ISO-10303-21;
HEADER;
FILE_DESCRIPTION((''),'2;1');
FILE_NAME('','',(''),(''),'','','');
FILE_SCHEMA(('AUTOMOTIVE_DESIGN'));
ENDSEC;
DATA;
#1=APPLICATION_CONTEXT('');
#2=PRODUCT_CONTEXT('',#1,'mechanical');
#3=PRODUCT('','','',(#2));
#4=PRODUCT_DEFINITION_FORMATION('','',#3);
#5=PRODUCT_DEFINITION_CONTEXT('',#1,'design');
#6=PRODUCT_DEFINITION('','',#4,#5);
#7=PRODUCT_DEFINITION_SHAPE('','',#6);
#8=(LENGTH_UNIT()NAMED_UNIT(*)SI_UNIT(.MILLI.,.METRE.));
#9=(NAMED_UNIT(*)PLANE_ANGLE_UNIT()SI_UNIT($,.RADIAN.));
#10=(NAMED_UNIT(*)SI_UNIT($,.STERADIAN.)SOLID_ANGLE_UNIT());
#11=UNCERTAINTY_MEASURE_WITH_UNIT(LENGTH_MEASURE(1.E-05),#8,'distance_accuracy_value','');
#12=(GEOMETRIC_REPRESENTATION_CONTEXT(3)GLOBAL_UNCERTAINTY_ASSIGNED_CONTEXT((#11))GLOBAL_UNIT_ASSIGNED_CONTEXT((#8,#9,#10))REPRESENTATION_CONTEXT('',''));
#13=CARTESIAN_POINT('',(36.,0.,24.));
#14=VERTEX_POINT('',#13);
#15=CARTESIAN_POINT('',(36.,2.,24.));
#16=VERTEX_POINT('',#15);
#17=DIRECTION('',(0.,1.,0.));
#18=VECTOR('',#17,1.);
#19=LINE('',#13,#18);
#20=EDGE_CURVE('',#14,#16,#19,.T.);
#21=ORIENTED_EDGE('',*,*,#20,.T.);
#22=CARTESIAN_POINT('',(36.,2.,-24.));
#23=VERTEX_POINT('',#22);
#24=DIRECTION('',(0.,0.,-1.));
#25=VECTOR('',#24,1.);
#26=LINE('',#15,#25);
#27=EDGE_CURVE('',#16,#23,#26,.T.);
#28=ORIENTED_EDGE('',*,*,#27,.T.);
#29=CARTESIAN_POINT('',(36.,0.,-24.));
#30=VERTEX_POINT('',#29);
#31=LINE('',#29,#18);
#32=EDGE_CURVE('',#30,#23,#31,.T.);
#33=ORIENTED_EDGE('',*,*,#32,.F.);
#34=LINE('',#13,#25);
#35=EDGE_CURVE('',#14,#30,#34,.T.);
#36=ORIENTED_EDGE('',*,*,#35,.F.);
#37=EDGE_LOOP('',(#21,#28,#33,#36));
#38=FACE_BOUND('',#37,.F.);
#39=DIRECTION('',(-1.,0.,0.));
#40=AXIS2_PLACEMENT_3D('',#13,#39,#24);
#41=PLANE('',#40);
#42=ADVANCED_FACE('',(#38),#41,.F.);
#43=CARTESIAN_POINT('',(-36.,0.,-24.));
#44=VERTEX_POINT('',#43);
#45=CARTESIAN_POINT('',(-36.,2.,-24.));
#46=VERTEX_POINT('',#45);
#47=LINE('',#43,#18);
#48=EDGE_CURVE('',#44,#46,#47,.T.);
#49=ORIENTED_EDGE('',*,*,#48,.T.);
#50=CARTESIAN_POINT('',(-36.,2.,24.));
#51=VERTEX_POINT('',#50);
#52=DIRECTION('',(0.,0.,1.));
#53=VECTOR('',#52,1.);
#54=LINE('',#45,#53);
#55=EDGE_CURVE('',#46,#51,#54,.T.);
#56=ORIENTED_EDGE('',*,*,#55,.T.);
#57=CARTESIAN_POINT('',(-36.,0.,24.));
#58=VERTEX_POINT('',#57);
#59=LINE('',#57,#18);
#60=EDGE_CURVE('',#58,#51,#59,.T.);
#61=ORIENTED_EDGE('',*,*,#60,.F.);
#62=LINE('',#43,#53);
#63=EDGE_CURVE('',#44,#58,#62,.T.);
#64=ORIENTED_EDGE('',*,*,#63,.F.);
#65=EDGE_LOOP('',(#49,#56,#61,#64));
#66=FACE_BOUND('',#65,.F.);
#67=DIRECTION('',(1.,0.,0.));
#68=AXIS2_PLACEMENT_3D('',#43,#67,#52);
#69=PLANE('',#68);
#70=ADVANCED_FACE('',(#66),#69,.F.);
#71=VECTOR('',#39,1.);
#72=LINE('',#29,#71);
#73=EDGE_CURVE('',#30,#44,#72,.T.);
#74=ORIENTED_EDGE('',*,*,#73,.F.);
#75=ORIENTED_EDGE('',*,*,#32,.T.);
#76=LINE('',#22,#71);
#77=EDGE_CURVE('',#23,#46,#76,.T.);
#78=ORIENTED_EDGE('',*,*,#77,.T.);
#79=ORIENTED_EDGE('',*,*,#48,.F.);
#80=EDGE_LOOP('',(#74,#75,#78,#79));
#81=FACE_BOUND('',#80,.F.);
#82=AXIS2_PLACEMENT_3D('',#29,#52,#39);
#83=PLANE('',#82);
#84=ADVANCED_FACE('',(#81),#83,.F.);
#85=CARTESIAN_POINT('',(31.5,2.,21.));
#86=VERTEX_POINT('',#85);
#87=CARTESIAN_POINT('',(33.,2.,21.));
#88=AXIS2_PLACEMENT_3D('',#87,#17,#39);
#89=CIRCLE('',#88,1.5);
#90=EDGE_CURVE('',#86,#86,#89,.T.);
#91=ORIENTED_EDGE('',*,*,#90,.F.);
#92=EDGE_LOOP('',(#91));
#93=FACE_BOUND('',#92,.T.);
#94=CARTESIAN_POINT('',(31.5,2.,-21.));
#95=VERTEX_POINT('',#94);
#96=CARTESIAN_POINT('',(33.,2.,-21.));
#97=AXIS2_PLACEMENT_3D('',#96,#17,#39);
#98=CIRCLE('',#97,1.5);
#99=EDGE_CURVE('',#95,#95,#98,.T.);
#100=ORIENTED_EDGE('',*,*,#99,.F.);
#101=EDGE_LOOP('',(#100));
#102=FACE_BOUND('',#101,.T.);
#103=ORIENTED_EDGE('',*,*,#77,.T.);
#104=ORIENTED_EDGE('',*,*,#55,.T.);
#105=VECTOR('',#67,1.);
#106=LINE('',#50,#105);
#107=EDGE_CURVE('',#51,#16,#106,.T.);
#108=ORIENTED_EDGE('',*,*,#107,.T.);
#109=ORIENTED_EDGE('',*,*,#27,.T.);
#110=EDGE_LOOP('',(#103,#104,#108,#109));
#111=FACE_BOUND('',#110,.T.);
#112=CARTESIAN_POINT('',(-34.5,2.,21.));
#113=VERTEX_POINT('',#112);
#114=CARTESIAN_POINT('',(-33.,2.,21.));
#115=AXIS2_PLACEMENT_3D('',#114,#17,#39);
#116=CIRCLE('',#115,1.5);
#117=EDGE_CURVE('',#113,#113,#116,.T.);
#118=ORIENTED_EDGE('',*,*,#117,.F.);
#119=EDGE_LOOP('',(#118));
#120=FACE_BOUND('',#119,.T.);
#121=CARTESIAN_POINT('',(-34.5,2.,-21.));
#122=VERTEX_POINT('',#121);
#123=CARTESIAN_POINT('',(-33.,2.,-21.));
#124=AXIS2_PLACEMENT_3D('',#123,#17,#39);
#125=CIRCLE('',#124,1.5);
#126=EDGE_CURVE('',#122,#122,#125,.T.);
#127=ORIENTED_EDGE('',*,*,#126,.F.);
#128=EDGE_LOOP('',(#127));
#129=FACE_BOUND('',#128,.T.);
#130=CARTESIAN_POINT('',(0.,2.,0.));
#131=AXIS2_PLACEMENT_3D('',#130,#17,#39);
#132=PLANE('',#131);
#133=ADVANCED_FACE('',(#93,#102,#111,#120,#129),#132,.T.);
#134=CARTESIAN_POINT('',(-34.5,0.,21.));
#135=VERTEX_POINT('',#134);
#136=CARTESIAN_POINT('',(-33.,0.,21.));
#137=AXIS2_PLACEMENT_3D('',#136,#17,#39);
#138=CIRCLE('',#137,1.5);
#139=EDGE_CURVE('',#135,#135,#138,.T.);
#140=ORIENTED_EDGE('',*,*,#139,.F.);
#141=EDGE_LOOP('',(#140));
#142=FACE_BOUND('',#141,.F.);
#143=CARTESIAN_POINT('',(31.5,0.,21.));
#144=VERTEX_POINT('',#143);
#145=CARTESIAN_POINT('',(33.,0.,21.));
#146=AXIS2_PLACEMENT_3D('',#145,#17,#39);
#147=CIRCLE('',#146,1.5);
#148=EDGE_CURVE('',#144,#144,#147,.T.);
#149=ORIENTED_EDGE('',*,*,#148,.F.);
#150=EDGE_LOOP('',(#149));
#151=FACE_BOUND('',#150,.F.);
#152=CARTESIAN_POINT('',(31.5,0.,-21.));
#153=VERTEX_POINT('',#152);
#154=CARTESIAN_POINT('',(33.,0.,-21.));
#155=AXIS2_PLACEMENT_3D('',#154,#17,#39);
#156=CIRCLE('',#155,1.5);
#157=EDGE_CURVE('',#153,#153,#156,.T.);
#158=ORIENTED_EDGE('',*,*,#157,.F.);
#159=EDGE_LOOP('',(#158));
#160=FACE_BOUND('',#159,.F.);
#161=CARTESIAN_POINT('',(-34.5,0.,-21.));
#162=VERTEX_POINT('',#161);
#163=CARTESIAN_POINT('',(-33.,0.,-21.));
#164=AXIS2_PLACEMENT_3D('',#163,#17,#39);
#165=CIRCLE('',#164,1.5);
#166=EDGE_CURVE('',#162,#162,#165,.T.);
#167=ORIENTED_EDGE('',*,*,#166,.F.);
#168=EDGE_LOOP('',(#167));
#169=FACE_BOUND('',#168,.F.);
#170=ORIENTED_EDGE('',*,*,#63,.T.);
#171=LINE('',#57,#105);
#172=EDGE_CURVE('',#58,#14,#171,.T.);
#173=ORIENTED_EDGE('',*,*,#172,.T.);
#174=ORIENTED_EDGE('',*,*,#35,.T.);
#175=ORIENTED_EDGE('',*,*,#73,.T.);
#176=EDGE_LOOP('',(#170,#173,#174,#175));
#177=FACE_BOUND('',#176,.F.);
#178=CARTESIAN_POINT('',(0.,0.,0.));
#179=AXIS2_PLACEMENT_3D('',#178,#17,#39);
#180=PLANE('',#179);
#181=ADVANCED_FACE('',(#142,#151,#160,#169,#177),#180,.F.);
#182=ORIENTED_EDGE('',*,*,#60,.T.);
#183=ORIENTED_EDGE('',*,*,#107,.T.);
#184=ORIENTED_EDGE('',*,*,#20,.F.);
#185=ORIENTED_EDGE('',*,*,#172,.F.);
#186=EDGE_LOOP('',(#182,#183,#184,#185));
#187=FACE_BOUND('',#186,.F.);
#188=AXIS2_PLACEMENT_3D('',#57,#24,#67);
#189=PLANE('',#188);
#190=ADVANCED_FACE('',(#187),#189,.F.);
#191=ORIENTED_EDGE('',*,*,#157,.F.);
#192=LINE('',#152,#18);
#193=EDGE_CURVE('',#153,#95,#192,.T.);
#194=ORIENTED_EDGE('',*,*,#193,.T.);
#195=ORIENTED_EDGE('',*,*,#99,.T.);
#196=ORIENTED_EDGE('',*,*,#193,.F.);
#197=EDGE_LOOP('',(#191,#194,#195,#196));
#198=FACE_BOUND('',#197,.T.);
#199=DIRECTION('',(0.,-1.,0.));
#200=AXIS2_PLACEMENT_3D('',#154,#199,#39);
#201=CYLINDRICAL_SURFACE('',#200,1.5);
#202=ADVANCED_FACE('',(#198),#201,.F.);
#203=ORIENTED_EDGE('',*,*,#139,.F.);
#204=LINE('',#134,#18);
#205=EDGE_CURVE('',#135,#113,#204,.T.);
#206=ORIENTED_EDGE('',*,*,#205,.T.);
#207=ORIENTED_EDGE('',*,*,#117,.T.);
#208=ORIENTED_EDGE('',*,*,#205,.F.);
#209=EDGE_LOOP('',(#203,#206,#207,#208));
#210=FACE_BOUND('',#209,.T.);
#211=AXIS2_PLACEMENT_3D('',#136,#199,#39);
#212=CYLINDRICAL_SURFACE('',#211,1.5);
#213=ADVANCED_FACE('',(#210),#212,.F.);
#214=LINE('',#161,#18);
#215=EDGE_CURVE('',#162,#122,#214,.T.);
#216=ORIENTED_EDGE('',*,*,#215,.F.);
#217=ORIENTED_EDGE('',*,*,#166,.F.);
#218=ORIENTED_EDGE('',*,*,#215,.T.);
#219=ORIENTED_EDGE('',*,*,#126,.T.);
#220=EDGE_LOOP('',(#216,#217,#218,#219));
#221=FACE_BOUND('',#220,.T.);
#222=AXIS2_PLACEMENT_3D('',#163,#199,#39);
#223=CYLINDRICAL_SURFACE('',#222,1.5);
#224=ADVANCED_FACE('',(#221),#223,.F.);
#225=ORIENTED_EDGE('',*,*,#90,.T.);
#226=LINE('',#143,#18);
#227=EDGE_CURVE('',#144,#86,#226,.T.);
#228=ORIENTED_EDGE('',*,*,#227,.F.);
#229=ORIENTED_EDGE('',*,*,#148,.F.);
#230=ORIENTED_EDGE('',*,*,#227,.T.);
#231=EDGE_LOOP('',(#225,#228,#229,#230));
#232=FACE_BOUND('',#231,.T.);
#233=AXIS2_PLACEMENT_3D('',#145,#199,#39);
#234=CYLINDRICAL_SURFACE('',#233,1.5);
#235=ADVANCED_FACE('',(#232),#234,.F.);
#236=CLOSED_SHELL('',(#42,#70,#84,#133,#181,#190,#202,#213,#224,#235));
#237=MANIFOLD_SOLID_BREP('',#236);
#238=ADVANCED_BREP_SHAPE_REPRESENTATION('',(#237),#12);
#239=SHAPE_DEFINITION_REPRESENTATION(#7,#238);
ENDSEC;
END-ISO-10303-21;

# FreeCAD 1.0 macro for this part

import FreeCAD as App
import Part
import Sketcher

V = App.Vector


def add_polygon(sketch, points):
    """Adds a closed chain of lines whose ends are joined by coincident constraints."""
    first, n = sketch.GeometryCount, len(points)
    for a, b in zip(points, points[1:] + points[:1]):
        sketch.addGeometry(Part.LineSegment(App.Vector(*a, 0), App.Vector(*b, 0)), False)
    for i in range(n):
        sketch.addConstraint(Sketcher.Constraint("Coincident", first + i, 2, first + (i + 1) % n, 1))

doc = App.newDocument("Part")
body = doc.addObject("PartDesign::Body", "Body")

# Sketch on XZ plane
sketch1 = doc.addObject("Sketcher::SketchObject", "Sketch")
body.addObject(sketch1)
sketch1.AttachmentSupport = (doc.XZ_Plane, [""])
sketch1.MapMode = "FlatFace"
add_polygon(sketch1, [(-36, -24), (-36, 24), (36, 24), (36, -24)])  # lines 0-3
sketch1.addGeometry(Part.Circle(V(33, -21, 0), V(0, 0, 1), 1.5), False)  # 4
sketch1.addGeometry(Part.Circle(V(-33, -21, 0), V(0, 0, 1), 1.5), False)  # 5
sketch1.addGeometry(Part.Circle(V(33, 21, 0), V(0, 0, 1), 1.5), False)  # 6
sketch1.addGeometry(Part.Circle(V(-33, 21, 0), V(0, 0, 1), 1.5), False)  # 7
sketch1.addConstraint(Sketcher.Constraint("Vertical", 0))
sketch1.addConstraint(Sketcher.Constraint("Horizontal", 1))
sketch1.addConstraint(Sketcher.Constraint("Vertical", 2))
sketch1.addConstraint(Sketcher.Constraint("Horizontal", 3))
sketch1.addConstraint(Sketcher.Constraint("Equal", 4, 5))
sketch1.addConstraint(Sketcher.Constraint("Equal", 5, 6))
sketch1.addConstraint(Sketcher.Constraint("Equal", 6, 7))
sketch1.addConstraint(Sketcher.Constraint("Symmetric", 5, 3, 6, 3, -1, 1))
sketch1.addConstraint(Sketcher.Constraint("Symmetric", 4, 3, 7, 3, -1, 1))
sketch1.addConstraint(Sketcher.Constraint("Symmetric", 0, 2, 2, 2, -1, 1))
sketch1.addConstraint(Sketcher.Constraint("Symmetric", 4, 3, 5, 3, -2))
sketch1.addConstraint(Sketcher.Constraint("Diameter", 4, 3.0))
sketch1.addConstraint(Sketcher.Constraint("DistanceX", 1, 1, 1, 2, 72.0))
sketch1.addConstraint(Sketcher.Constraint("DistanceY", 0, 1, 0, 2, 48.0))
sketch1.addConstraint(Sketcher.Constraint("DistanceY", 4, 3, 6, 3, 42.0))
sketch1.addConstraint(Sketcher.Constraint("DistanceX", 0, 2, 7, 3, 3.0))
pad1 = doc.addObject("PartDesign::Pad", "Pad")
body.addObject(pad1)
pad1.Profile = sketch1
pad1.Length = 2
pad1.Reversed = True

doc.recompute()
